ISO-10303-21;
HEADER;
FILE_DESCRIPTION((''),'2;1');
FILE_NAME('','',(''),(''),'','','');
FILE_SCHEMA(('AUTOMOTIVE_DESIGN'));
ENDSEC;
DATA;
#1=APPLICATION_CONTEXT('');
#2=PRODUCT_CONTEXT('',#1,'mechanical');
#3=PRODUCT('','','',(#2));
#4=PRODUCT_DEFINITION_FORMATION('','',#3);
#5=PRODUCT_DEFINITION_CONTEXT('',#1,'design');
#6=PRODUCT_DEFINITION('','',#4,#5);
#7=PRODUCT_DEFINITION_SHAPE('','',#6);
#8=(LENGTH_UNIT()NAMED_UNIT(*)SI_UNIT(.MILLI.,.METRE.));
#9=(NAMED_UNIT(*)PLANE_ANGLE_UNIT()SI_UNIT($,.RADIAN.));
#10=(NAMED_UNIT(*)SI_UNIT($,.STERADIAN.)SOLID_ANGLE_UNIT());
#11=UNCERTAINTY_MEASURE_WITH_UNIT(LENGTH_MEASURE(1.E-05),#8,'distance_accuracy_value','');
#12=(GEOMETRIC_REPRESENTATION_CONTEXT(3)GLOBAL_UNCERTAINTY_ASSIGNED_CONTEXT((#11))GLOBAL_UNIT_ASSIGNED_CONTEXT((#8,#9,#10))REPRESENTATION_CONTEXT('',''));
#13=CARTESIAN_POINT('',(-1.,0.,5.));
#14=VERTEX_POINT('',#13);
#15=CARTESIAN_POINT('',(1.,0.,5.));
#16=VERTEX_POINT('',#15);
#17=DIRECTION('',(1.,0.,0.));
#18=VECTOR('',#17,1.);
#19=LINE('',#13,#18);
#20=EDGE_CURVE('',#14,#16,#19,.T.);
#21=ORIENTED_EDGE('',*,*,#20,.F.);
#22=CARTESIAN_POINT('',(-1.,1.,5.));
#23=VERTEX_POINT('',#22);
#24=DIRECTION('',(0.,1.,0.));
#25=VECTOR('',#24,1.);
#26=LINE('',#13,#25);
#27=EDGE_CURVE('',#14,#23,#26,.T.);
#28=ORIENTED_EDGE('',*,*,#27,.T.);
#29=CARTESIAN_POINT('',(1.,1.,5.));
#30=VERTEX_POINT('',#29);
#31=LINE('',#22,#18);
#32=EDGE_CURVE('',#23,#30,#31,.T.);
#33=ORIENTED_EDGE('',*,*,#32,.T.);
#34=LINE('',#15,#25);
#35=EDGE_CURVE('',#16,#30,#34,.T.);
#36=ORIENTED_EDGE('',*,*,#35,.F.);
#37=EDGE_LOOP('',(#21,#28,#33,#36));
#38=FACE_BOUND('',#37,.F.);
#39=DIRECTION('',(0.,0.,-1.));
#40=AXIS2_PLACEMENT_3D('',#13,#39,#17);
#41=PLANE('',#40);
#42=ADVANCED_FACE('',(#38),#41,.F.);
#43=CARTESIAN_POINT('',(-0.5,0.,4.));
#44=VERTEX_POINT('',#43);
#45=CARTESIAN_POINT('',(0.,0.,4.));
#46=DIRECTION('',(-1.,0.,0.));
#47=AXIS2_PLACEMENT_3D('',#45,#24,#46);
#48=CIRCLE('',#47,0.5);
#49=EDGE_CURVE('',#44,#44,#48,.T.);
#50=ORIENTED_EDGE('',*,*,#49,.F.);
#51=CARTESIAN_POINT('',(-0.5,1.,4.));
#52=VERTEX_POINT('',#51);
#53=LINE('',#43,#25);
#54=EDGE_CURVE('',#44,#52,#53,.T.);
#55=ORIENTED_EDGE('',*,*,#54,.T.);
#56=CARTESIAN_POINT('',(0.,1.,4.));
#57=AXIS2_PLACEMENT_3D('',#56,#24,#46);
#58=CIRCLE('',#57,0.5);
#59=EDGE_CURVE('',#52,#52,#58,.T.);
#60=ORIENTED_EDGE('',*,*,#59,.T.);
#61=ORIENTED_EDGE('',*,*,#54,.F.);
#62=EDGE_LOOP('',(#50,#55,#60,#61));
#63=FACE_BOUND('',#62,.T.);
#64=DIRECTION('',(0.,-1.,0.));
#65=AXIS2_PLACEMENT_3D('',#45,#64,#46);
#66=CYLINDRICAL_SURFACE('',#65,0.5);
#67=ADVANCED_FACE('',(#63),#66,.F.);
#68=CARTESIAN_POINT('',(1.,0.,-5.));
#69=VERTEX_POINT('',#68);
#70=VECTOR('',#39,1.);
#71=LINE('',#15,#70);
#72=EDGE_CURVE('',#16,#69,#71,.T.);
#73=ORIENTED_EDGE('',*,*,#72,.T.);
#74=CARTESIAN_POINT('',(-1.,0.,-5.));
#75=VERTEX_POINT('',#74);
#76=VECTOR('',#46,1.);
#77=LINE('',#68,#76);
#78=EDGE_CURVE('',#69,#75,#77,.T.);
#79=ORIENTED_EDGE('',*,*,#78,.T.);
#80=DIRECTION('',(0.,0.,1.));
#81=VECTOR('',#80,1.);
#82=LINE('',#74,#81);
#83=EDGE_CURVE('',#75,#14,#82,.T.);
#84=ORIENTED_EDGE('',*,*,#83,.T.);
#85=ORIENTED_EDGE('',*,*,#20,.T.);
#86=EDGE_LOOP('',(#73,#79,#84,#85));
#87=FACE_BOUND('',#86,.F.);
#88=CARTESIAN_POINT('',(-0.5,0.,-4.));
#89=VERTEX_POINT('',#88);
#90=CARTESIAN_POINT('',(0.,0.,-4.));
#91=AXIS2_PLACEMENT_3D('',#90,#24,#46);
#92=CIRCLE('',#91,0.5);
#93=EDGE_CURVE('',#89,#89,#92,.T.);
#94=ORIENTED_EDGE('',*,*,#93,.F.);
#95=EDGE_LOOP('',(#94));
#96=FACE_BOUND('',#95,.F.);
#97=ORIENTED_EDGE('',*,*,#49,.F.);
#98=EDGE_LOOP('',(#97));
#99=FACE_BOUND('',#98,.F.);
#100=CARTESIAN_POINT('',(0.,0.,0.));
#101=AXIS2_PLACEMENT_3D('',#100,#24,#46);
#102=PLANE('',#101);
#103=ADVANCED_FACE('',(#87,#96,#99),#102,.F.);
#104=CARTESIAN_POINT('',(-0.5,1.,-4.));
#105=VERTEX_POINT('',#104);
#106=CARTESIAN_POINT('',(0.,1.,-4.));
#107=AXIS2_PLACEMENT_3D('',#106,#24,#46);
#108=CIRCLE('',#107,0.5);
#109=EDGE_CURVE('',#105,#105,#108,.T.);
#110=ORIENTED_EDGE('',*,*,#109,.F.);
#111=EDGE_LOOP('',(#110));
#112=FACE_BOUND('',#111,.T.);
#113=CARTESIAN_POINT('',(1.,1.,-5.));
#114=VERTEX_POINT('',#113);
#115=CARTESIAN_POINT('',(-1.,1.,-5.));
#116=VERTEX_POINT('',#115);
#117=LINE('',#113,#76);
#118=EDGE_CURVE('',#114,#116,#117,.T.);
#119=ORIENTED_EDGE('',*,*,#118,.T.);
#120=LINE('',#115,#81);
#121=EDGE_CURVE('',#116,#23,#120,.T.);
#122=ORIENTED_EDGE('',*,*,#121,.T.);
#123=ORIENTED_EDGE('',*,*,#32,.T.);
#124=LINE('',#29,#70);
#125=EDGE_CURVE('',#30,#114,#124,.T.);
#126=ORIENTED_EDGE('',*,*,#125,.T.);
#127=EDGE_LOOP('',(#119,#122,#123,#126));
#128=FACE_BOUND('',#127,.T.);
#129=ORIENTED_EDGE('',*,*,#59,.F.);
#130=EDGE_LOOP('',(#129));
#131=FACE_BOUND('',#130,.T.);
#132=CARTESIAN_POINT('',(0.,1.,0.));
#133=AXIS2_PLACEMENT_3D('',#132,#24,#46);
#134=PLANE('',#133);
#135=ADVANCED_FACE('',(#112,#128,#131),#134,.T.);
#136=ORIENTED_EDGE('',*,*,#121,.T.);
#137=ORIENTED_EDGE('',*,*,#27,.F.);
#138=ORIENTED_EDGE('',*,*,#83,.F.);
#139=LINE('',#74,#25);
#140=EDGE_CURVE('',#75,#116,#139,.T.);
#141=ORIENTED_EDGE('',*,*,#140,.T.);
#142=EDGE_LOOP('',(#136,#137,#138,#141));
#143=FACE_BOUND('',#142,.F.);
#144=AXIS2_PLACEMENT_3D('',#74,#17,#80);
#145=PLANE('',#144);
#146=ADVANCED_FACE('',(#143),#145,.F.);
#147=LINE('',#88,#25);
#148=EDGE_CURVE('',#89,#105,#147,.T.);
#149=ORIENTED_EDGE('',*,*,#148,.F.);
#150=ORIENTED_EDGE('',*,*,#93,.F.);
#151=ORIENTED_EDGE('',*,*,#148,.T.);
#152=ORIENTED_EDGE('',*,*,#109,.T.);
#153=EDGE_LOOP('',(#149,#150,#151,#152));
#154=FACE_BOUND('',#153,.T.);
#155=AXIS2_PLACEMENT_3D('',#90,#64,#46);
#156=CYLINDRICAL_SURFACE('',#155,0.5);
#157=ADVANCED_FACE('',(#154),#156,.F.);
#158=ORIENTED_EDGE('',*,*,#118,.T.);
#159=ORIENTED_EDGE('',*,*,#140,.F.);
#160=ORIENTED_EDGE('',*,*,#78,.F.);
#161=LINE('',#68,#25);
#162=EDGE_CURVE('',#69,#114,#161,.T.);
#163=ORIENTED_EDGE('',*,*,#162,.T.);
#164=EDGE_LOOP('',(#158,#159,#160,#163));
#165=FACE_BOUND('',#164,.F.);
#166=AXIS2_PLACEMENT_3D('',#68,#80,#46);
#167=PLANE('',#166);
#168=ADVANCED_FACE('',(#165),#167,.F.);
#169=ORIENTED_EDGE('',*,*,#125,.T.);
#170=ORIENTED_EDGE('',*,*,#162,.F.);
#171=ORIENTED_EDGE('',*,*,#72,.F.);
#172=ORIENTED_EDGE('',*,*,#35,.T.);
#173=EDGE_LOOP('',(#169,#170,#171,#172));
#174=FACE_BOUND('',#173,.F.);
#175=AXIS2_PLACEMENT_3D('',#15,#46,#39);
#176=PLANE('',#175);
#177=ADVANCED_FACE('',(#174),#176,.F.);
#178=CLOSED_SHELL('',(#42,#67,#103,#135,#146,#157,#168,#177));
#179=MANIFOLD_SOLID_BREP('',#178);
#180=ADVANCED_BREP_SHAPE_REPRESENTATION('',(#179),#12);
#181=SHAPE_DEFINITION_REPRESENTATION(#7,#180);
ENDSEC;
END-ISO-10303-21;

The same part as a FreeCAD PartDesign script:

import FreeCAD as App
import Part
import Sketcher


def add_polygon(sketch, points):
    """Adds a closed chain of lines whose ends are joined by coincident constraints."""
    first, n = sketch.GeometryCount, len(points)
    for a, b in zip(points, points[1:] + points[:1]):
        sketch.addGeometry(Part.LineSegment(App.Vector(*a, 0), App.Vector(*b, 0)), False)
    for i in range(n):
        sketch.addConstraint(Sketcher.Constraint("Coincident", first + i, 2, first + (i + 1) % n, 1))

doc = App.newDocument("Part")
body = doc.addObject("PartDesign::Body", "Body")

sketch1 = body.newObject("Sketcher::SketchObject", "Sketch")
sketch1.AttachmentSupport = (doc.getObject("XZ_Plane"), [""])
sketch1.MapMode = "FlatFace"
add_polygon(sketch1, [(1, 5), (1, -5), (-1, -5), (-1, 5)])
sketch1.addGeometry(Part.Circle(App.Vector(0, -4, 0), App.Vector(0, 0, 1), 0.5), False)
sketch1.addGeometry(Part.Circle(App.Vector(0, 4, 0), App.Vector(0, 0, 1), 0.5), False)
sketch1.addConstraint(Sketcher.Constraint("Vertical", 0))
sketch1.addConstraint(Sketcher.Constraint("Horizontal", 1))
sketch1.addConstraint(Sketcher.Constraint("Vertical", 2))
sketch1.addConstraint(Sketcher.Constraint("Horizontal", 3))
sketch1.addConstraint(Sketcher.Constraint("Equal", 4, 5))
sketch1.addConstraint(Sketcher.Constraint("Symmetric", 4, 3, 5, 3, -1, 1))
sketch1.addConstraint(Sketcher.Constraint("Symmetric", 0, 2, 2, 2, -1, 1))
sketch1.addConstraint(Sketcher.Constraint("PointOnObject", 4, 3, -2))
sketch1.addConstraint(Sketcher.Constraint("Diameter", 4, 1.0))
sketch1.addConstraint(Sketcher.Constraint("DistanceX", 1, 2, 1, 1, 2.0))
sketch1.addConstraint(Sketcher.Constraint("DistanceY", 0, 2, 0, 1, 10.0))
sketch1.addConstraint(Sketcher.Constraint("DistanceY", 0, 2, 4, 3, 1.0))
pad1 = body.newObject("PartDesign::Pad", "Pad")
pad1.Profile = sketch1
pad1.Length = 1
pad1.Reversed = True

doc.recompute()
